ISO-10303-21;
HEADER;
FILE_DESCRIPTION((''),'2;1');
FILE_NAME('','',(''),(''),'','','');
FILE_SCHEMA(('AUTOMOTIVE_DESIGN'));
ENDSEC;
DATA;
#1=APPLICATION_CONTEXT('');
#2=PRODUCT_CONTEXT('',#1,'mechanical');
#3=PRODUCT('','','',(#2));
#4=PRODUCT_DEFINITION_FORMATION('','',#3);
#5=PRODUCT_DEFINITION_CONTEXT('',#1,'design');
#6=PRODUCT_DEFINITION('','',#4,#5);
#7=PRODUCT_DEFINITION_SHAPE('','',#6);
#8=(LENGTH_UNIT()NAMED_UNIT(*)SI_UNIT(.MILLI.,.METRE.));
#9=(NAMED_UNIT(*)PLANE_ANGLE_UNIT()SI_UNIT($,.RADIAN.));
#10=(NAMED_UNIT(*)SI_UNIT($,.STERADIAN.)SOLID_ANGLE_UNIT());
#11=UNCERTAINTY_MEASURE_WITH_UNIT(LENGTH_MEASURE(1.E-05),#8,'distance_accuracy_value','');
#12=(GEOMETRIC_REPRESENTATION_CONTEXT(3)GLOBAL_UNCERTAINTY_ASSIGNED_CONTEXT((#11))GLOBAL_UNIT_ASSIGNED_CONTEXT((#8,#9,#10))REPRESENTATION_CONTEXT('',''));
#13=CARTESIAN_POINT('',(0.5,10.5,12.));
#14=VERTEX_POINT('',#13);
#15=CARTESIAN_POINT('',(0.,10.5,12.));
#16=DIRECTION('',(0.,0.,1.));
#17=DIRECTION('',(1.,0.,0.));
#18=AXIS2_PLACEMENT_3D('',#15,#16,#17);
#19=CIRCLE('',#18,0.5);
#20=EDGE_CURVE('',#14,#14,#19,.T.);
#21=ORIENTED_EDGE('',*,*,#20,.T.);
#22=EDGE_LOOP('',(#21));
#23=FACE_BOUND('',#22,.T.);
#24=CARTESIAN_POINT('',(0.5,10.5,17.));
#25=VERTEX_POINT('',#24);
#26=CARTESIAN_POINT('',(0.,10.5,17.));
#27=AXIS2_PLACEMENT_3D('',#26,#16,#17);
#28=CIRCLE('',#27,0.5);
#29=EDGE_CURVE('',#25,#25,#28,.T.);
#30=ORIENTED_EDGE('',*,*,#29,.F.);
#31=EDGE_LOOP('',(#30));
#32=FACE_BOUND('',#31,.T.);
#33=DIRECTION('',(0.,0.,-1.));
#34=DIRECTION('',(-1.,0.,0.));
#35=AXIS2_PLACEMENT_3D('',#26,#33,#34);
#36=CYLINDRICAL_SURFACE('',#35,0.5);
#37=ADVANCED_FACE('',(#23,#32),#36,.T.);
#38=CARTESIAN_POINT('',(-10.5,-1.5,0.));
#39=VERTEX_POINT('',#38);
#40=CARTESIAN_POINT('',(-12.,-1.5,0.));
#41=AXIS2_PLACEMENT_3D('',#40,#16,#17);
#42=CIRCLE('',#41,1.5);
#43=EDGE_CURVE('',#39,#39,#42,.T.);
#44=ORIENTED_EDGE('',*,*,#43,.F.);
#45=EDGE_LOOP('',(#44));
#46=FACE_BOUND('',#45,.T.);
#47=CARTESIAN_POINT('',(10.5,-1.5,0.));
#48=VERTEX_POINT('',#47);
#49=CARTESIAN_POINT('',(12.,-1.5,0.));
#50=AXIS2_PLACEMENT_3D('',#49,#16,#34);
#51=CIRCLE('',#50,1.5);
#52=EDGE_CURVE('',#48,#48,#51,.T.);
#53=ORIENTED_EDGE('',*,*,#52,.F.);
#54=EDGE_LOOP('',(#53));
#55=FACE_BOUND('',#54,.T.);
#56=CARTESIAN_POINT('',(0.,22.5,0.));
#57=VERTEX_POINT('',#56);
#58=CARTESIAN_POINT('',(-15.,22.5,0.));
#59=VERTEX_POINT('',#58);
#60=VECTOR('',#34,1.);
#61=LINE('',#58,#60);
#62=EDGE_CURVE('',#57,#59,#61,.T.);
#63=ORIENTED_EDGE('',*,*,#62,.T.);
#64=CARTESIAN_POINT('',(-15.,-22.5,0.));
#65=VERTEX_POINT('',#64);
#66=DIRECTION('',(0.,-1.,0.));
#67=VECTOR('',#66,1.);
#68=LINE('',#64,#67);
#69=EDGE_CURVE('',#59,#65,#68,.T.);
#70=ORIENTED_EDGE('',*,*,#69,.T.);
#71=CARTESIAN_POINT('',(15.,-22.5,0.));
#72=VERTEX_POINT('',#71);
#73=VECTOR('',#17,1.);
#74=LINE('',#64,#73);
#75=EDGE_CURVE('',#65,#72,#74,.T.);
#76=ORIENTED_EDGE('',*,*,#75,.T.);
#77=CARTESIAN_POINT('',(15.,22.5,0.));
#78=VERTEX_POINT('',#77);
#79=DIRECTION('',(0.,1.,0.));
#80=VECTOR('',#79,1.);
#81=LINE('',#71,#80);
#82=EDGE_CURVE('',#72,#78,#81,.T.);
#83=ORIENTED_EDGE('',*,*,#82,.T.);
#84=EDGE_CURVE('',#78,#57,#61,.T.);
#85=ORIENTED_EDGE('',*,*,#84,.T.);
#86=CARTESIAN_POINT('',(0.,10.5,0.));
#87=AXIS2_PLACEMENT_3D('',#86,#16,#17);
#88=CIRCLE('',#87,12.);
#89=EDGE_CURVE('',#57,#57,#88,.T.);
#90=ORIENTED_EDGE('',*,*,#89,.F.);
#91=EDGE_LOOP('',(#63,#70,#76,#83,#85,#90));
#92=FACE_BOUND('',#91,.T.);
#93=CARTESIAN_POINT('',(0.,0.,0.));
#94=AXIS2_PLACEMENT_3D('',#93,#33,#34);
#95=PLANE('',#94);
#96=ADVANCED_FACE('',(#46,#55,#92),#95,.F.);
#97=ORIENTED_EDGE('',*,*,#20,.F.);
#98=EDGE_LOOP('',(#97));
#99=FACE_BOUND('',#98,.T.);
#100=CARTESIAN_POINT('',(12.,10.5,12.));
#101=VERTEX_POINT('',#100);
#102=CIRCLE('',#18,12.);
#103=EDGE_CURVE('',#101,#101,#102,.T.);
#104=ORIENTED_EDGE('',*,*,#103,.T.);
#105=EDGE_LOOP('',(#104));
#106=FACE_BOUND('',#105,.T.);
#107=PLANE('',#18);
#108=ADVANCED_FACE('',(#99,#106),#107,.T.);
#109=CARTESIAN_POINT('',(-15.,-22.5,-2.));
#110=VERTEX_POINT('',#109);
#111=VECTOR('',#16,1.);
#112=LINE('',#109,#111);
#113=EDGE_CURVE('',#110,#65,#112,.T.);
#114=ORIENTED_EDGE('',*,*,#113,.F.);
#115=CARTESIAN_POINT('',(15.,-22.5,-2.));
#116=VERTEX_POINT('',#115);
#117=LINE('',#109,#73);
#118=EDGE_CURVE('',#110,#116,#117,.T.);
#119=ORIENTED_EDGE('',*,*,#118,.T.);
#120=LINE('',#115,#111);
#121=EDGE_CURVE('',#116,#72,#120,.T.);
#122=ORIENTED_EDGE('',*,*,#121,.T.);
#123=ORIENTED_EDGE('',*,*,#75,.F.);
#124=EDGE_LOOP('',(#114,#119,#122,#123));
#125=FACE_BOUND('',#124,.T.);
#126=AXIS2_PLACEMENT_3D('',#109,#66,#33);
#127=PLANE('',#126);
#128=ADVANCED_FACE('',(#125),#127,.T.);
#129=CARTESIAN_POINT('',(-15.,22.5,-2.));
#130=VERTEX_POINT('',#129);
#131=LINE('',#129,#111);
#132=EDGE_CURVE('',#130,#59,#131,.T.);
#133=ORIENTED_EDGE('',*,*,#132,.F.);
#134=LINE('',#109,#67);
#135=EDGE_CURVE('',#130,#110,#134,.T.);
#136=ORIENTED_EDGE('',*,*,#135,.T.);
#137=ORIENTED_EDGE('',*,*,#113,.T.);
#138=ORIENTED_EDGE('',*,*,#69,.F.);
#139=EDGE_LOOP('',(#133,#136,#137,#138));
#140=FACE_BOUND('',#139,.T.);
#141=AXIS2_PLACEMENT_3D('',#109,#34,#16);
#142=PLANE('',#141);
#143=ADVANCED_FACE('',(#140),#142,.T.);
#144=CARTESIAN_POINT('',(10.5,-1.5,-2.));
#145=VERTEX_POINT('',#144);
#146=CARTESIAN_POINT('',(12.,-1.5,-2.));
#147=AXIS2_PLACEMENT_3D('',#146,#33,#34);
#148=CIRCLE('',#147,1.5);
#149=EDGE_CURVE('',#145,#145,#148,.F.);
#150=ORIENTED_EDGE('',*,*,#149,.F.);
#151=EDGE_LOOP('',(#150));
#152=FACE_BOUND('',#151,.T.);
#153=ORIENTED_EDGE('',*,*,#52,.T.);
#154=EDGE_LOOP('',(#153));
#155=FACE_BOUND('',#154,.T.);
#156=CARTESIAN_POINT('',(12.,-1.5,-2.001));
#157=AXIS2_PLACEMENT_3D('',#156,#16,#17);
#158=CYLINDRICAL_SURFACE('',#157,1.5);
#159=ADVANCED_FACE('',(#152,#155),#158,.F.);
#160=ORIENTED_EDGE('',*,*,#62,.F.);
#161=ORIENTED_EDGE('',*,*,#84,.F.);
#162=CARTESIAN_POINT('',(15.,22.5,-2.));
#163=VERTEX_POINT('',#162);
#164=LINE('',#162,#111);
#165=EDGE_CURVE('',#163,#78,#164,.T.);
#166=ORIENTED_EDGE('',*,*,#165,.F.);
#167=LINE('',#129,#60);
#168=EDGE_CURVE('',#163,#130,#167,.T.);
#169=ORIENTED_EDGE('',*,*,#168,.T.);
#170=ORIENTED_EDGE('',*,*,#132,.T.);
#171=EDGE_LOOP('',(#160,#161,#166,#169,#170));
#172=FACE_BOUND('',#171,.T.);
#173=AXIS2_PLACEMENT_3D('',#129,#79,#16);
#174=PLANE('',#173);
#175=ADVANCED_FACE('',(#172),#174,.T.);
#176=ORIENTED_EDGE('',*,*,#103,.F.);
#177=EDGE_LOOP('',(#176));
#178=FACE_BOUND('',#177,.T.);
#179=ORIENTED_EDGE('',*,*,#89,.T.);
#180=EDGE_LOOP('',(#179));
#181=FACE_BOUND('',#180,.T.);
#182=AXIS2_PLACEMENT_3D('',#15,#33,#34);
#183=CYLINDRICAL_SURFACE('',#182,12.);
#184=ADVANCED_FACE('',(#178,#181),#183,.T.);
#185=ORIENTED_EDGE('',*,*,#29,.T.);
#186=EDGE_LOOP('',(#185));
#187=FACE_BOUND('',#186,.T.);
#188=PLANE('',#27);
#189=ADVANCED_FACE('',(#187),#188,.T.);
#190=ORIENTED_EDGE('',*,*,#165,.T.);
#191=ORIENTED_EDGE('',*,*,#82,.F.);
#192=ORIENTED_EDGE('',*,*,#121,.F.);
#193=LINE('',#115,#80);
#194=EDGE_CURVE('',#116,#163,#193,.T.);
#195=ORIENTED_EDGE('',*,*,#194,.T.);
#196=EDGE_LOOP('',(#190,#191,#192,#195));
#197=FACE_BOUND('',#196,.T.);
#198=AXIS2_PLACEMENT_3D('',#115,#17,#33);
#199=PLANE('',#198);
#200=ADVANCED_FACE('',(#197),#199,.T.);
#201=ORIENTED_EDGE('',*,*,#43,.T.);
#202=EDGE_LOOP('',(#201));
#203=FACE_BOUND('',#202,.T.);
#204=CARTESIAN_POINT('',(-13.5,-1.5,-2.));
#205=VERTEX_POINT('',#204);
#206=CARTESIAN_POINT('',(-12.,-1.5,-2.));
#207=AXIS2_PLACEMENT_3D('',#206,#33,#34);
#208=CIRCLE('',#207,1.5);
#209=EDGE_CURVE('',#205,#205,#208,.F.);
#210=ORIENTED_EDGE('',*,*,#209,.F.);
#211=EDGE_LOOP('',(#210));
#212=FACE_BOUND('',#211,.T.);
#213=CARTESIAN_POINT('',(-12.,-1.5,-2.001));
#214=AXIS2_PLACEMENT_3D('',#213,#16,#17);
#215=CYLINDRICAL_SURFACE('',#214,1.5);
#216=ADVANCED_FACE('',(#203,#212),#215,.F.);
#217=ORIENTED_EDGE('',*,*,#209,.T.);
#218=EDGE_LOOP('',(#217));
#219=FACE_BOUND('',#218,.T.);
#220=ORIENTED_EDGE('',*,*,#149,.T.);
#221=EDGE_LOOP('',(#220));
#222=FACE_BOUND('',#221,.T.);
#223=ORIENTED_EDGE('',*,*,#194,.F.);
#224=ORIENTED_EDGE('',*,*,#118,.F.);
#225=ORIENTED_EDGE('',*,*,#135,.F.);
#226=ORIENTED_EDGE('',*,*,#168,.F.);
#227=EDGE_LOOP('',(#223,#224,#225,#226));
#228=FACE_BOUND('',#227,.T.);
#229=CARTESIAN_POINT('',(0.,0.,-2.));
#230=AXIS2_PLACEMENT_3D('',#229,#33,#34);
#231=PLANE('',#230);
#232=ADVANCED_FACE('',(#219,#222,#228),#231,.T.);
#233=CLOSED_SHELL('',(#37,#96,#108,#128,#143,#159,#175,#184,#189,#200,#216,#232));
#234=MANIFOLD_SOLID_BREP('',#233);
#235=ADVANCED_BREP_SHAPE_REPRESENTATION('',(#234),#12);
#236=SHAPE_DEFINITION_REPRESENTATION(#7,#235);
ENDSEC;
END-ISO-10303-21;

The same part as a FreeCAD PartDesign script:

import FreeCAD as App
import Part
import Sketcher
from FreeCAD import Vector
Q = App.Units.Quantity


def add_polygon(sketch, points):
    """Adds a closed chain of lines whose ends are joined by coincident constraints."""
    first, n = sketch.GeometryCount, len(points)
    for a, b in zip(points, points[1:] + points[:1]):
        sketch.addGeometry(Part.LineSegment(App.Vector(*a, 0), App.Vector(*b, 0)), False)
    for i in range(n):
        sketch.addConstraint(Sketcher.Constraint("Coincident", first + i, 2, first + (i + 1) % n, 1))

doc = App.newDocument("Part")
params = doc.addObject("Spreadsheet::Sheet", "Params")
for row, (alias, value) in enumerate([
    ("sketch1_width", "30 mm"),
    ("sketch1_height", "45 mm"),
    ("pad1_length", "2 mm"),
    ("sketch2_diameter", "24 mm"),
    ("pad2_length", "12 mm"),
    ("sketch3_diameter", "3 mm"),
    ("sketch4_diameter", "3 mm"),
    ("sketch5_diameter", "1 mm"),
    ("pad3_length", "5 mm"),
], start=1):
    params.set(f"A{row}", alias)
    params.set(f"B{row}", "=" + value)
    params.setAlias(f"B{row}", alias)

body = doc.addObject("PartDesign::Body", "Body")

sketch1 = body.newObject("Sketcher::SketchObject", "Sketch")
sketch1.AttachmentSupport = (doc.getObject("XY_Plane"), [""])
sketch1.MapMode = "FlatFace"
add_polygon(sketch1, [(-15, 22.5), (-15, -22.5), (15, -22.5), (15, 22.5)])
sketch1.addConstraint([
    Sketcher.Constraint("Vertical", 0),
    Sketcher.Constraint("Horizontal", 1),
    Sketcher.Constraint("Vertical", 2),
    Sketcher.Constraint("Horizontal", 3),
    Sketcher.Constraint("Symmetric", 0, 2, 2, 2, -1, 1),
    Sketcher.Constraint("DistanceX", 1, 1, 1, 2, Q("30 mm")),
    Sketcher.Constraint("DistanceY", 0, 2, 0, 1, Q("45 mm")),
])
sketch1.setExpression("Constraints[9]", "Params.sketch1_width")
sketch1.setExpression("Constraints[10]", "Params.sketch1_height")
pad1 = body.newObject("PartDesign::Pad", "Pad")
pad1.Profile = sketch1
pad1.setExpression("Length", "Params.pad1_length")
pad1.Reversed = True

sketch2 = body.newObject("Sketcher::SketchObject", "Sketch001")
sketch2.AttachmentSupport = (doc.getObject("XY_Plane"), [""])
sketch2.MapMode = "FlatFace"
sketch2.addGeometry(Part.Circle(Vector(0, 10.5, 0), Vector(0, 0, 1), 12), False)
sketch2.addConstraint([
    Sketcher.Constraint("PointOnObject", 0, 3, -2),
    Sketcher.Constraint("Diameter", 0, Q("24 mm")),
    Sketcher.Constraint("DistanceY", -1, 1, 0, 3, Q("10.5 mm")),
])
sketch2.setExpression("Constraints[1]", "Params.sketch2_diameter")
pad2 = body.newObject("PartDesign::Pad", "Pad001")
pad2.Profile = sketch2
pad2.setExpression("Length", "Params.pad2_length")

sketch3 = body.newObject("Sketcher::SketchObject", "Sketch002")
sketch3.AttachmentSupport = (doc.getObject("XY_Plane"), [""])
sketch3.MapMode = "FlatFace"
sketch3.addGeometry(Part.Circle(Vector(-12, -1.5, 0), Vector(0, 0, 1), 1.5), False)
sketch3.addConstraint([
    Sketcher.Constraint("Diameter", 0, Q("3 mm")),
    Sketcher.Constraint("DistanceX", 0, 3, -1, 1, Q("12 mm")),
    Sketcher.Constraint("DistanceY", 0, 3, -1, 1, Q("1.5 mm")),
])
sketch3.setExpression("Constraints[0]", "Params.sketch3_diameter")
pocket1 = body.newObject("PartDesign::Pocket", "Pocket")
pocket1.Profile = sketch3
pocket1.Type = "UpToFirst"

sketch4 = body.newObject("Sketcher::SketchObject", "Sketch003")
sketch4.AttachmentSupport = (doc.getObject("XY_Plane"), [""])
sketch4.MapMode = "FlatFace"
sketch4.addGeometry(Part.Circle(Vector(12, -1.5, 0), Vector(0, 0, 1), 1.5), False)
sketch4.addConstraint([
    Sketcher.Constraint("Diameter", 0, Q("3 mm")),
    Sketcher.Constraint("DistanceX", -1, 1, 0, 3, Q("12 mm")),
    Sketcher.Constraint("DistanceY", 0, 3, -1, 1, Q("1.5 mm")),
])
sketch4.setExpression("Constraints[0]", "Params.sketch4_diameter")
pocket2 = body.newObject("PartDesign::Pocket", "Pocket001")
pocket2.Profile = sketch4
pocket2.Type = "UpToFirst"

sketch5 = body.newObject("Sketcher::SketchObject", "Sketch004")
sketch5.AttachmentSupport = (doc.getObject("XY_Plane"), [""])
sketch5.MapMode = "FlatFace"
sketch5.AttachmentOffset = App.Placement(Vector(0, 0, 12), App.Rotation())
sketch5.addGeometry(Part.Circle(Vector(0, 10.5, 0), Vector(0, 0, 1), 0.5), False)
sketch5.addConstraint([
    Sketcher.Constraint("PointOnObject", 0, 3, -2),
    Sketcher.Constraint("Diameter", 0, Q("1 mm")),
    Sketcher.Constraint("DistanceY", -1, 1, 0, 3, Q("10.5 mm")),
])
sketch5.setExpression("Constraints[1]", "Params.sketch5_diameter")
pad3 = body.newObject("PartDesign::Pad", "Pad002")
pad3.Profile = sketch5
pad3.setExpression("Length", "Params.pad3_length")

doc.recompute()
